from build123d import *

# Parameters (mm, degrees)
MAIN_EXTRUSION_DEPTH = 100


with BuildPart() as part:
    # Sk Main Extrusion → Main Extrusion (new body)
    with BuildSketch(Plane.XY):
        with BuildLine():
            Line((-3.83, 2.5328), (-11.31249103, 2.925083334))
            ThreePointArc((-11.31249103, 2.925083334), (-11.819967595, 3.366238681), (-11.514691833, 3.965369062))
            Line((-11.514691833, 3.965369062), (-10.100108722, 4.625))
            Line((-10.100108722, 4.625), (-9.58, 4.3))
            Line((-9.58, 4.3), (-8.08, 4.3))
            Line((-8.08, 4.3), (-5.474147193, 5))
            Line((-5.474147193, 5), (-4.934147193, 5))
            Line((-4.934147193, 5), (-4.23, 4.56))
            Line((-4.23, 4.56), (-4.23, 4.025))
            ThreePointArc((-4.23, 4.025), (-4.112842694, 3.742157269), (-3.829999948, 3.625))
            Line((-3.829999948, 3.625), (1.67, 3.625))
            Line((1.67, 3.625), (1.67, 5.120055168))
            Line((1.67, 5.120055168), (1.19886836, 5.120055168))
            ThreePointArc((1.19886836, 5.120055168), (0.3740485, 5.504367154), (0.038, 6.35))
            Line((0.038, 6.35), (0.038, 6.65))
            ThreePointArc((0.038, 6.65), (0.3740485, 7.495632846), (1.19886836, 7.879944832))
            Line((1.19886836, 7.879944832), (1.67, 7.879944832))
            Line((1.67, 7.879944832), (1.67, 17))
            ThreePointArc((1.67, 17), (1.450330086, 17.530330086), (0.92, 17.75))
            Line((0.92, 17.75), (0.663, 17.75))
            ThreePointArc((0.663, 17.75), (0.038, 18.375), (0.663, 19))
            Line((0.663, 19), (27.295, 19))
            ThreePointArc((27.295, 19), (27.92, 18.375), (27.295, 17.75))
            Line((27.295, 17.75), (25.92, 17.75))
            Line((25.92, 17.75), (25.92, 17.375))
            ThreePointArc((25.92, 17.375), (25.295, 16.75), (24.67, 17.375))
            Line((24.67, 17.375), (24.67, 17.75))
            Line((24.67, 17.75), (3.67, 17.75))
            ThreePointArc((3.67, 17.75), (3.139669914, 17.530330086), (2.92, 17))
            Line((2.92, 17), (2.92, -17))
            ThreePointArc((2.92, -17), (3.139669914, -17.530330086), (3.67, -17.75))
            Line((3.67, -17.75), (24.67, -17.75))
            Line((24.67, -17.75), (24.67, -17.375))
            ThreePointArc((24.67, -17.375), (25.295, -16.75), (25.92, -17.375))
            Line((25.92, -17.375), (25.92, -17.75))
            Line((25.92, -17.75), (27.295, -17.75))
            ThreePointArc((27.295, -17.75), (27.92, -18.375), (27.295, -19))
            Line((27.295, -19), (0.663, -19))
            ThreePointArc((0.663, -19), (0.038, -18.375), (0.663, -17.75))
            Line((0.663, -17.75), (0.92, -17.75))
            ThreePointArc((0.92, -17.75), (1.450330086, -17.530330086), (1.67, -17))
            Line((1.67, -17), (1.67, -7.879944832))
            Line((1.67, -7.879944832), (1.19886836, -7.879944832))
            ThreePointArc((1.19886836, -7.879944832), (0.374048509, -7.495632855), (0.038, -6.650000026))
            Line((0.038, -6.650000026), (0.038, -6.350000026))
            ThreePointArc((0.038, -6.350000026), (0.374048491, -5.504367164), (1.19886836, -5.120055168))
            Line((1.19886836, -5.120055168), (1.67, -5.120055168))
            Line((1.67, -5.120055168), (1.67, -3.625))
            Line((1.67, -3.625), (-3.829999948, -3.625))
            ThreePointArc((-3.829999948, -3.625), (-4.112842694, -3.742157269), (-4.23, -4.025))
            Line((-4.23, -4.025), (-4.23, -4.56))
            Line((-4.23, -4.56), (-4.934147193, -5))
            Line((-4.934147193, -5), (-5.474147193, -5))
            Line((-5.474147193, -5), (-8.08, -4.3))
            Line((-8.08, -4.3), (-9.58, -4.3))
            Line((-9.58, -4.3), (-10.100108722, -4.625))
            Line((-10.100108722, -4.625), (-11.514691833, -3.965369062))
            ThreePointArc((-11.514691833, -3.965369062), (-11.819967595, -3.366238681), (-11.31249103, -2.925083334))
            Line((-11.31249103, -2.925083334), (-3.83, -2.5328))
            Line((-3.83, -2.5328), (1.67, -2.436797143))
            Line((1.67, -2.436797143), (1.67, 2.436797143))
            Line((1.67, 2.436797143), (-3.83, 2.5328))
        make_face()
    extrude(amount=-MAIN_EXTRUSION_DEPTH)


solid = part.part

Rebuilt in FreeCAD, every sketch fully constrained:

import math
import FreeCAD as App
import Part
import Sketcher

V = App.Vector
Q = App.Units.Quantity

doc = App.newDocument("Part")
params = doc.addObject("Spreadsheet::Sheet", "Params")
for row, (alias, value) in enumerate([
    ("sketch1_radius", "0.4 mm"),
    ("sketch1_width", "21 mm"),
    ("sketch1_height", "34 mm"),
    ("sketch1_radius2", "0.75 mm"),
    ("sketch1_width2", "1.5 mm"),
    ("pad1_length", "100 mm"),
], start=1):
    params.set(f"A{row}", alias)
    params.set(f"B{row}", "=" + value)
    params.setAlias(f"B{row}", alias)

body = doc.addObject("PartDesign::Body", "Body")

sketch1 = doc.addObject("Sketcher::SketchObject", "Sketch")
body.addObject(sketch1)
sketch1.AttachmentSupport = (doc.XY_Plane, [""])
sketch1.MapMode = "FlatFace"
sketch1.addGeometry([
    Part.LineSegment(V(-11.31, 2.93, 0), V(-3.83, 2.53, 0)),
    Part.LineSegment(V(-3.83, 2.53, 0), V(1.67, 2.44, 0)),
    Part.LineSegment(V(1.67, 2.44, 0), V(1.67, -2.44, 0)),
    Part.LineSegment(V(1.67, -2.44, 0), V(-3.83, -2.53, 0)),
    Part.LineSegment(V(-3.83, -2.53, 0), V(-11.31, -2.93, 0)),
    Part.ArcOfCircle(Part.Circle(V(-11.28, -3.47, 0), V(0, 0, 1), 0.55), math.radians(93), math.radians(245)),
    Part.LineSegment(V(-11.51, -3.97, 0), V(-10.1, -4.62, 0)),
    Part.LineSegment(V(-10.1, -4.62, 0), V(-9.58, -4.3, 0)),
    Part.LineSegment(V(-9.58, -4.3, 0), V(-8.08, -4.3, 0)),
    Part.LineSegment(V(-8.08, -4.3, 0), V(-5.47, -5, 0)),
    Part.LineSegment(V(-5.47, -5, 0), V(-4.93, -5, 0)),
    Part.LineSegment(V(-4.93, -5, 0), V(-4.23, -4.56, 0)),
    Part.LineSegment(V(-4.23, -4.56, 0), V(-4.23, -4.03, 0)),
    Part.ArcOfCircle(Part.Circle(V(-3.83, -4.03, 0), V(0, 0, 1), 0.4), math.radians(90), math.radians(180)),
    Part.LineSegment(V(-3.83, -3.62, 0), V(1.67, -3.62, 0)),
    Part.LineSegment(V(1.67, -3.62, 0), V(1.67, -5.12, 0)),
    Part.LineSegment(V(1.67, -5.12, 0), V(1.2, -5.12, 0)),
    Part.ArcOfCircle(Part.Circle(V(1.27, -6.35, 0), V(0, 0, 1), 1.23), math.radians(93), math.radians(180)),
    Part.LineSegment(V(0.04, -6.35, 0), V(0.04, -6.65, 0)),
    Part.ArcOfCircle(Part.Circle(V(1.27, -6.65, 0), V(0, 0, 1), 1.23), math.radians(-180), math.radians(-93)),
    Part.LineSegment(V(1.2, -7.88, 0), V(1.67, -7.88, 0)),
    Part.LineSegment(V(1.67, -7.88, 0), V(1.67, -17, 0)),
    Part.ArcOfCircle(Part.Circle(V(0.92, -17, 0), V(0, 0, 1), 0.75), math.radians(-90), math.radians(0)),
    Part.LineSegment(V(0.92, -17.75, 0), V(0.66, -17.75, 0)),
    Part.ArcOfCircle(Part.Circle(V(0.66, -18.38, 0), V(0, 0, 1), 0.62), math.radians(90), math.radians(270)),
    Part.LineSegment(V(0.66, -19, 0), V(27.3, -19, 0)),
    Part.ArcOfCircle(Part.Circle(V(27.3, -18.38, 0), V(0, 0, 1), 0.62), math.radians(-90), math.radians(90)),
    Part.LineSegment(V(27.3, -17.75, 0), V(25.92, -17.75, 0)),
    Part.LineSegment(V(25.92, -17.75, 0), V(25.92, -17.38, 0)),
    Part.ArcOfCircle(Part.Circle(V(25.3, -17.38, 0), V(0, 0, 1), 0.62), math.radians(0), math.radians(180)),
    Part.LineSegment(V(24.67, -17.38, 0), V(24.67, -17.75, 0)),
    Part.LineSegment(V(24.67, -17.75, 0), V(3.67, -17.75, 0)),
    Part.ArcOfCircle(Part.Circle(V(3.67, -17, 0), V(0, 0, 1), 0.75), math.radians(180), math.radians(270)),
    Part.LineSegment(V(2.92, -17, 0), V(2.92, 17, 0)),
    Part.ArcOfCircle(Part.Circle(V(3.67, 17, 0), V(0, 0, 1), 0.75), math.radians(90), math.radians(180)),
    Part.LineSegment(V(3.67, 17.75, 0), V(24.67, 17.75, 0)),
    Part.LineSegment(V(24.67, 17.75, 0), V(24.67, 17.38, 0)),
    Part.ArcOfCircle(Part.Circle(V(25.3, 17.38, 0), V(0, 0, 1), 0.62), math.radians(180), math.radians(360)),
    Part.LineSegment(V(25.92, 17.38, 0), V(25.92, 17.75, 0)),
    Part.LineSegment(V(25.92, 17.75, 0), V(27.3, 17.75, 0)),
    Part.ArcOfCircle(Part.Circle(V(27.3, 18.38, 0), V(0, 0, 1), 0.62), math.radians(-90), math.radians(90)),
    Part.LineSegment(V(27.3, 19, 0), V(0.66, 19, 0)),
    Part.ArcOfCircle(Part.Circle(V(0.66, 18.38, 0), V(0, 0, 1), 0.62), math.radians(90), math.radians(270)),
    Part.LineSegment(V(0.66, 17.75, 0), V(0.92, 17.75, 0)),
    Part.ArcOfCircle(Part.Circle(V(0.92, 17, 0), V(0, 0, 1), 0.75), math.radians(0), math.radians(90)),
    Part.LineSegment(V(1.67, 17, 0), V(1.67, 7.88, 0)),
    Part.LineSegment(V(1.67, 7.88, 0), V(1.2, 7.88, 0)),
    Part.ArcOfCircle(Part.Circle(V(1.27, 6.65, 0), V(0, 0, 1), 1.23), math.radians(93), math.radians(180)),
    Part.LineSegment(V(0.04, 6.65, 0), V(0.04, 6.35, 0)),
    Part.ArcOfCircle(Part.Circle(V(1.27, 6.35, 0), V(0, 0, 1), 1.23), math.radians(180), math.radians(267)),
    Part.LineSegment(V(1.2, 5.12, 0), V(1.67, 5.12, 0)),
    Part.LineSegment(V(1.67, 5.12, 0), V(1.67, 3.62, 0)),
    Part.LineSegment(V(1.67, 3.62, 0), V(-3.83, 3.62, 0)),
    Part.ArcOfCircle(Part.Circle(V(-3.83, 4.03, 0), V(0, 0, 1), 0.4), math.radians(180), math.radians(270)),
    Part.LineSegment(V(-4.23, 4.03, 0), V(-4.23, 4.56, 0)),
    Part.LineSegment(V(-4.23, 4.56, 0), V(-4.93, 5, 0)),
    Part.LineSegment(V(-4.93, 5, 0), V(-5.47, 5, 0)),
    Part.LineSegment(V(-5.47, 5, 0), V(-8.08, 4.3, 0)),
    Part.LineSegment(V(-8.08, 4.3, 0), V(-9.58, 4.3, 0)),
    Part.LineSegment(V(-9.58, 4.3, 0), V(-10.1, 4.62, 0)),
    Part.LineSegment(V(-10.1, 4.62, 0), V(-11.51, 3.97, 0)),
    Part.ArcOfCircle(Part.Circle(V(-11.28, 3.47, 0), V(0, 0, 1), 0.55), math.radians(115), math.radians(267)),
], False)
sketch1.addConstraint([
    Sketcher.Constraint("Coincident", 0, 2, 1, 1),
    Sketcher.Constraint("Coincident", 1, 2, 2, 1),
    Sketcher.Constraint("Coincident", 2, 2, 3, 1),
    Sketcher.Constraint("Coincident", 3, 2, 4, 1),
    Sketcher.Constraint("Tangent", 4, 2, 5, 1),
    Sketcher.Constraint("Tangent", 5, 2, 6, 1),
    Sketcher.Constraint("Coincident", 6, 2, 7, 1),
    Sketcher.Constraint("Coincident", 7, 2, 8, 1),
    Sketcher.Constraint("Coincident", 8, 2, 9, 1),
    Sketcher.Constraint("Coincident", 9, 2, 10, 1),
    Sketcher.Constraint("Coincident", 10, 2, 11, 1),
    Sketcher.Constraint("Coincident", 11, 2, 12, 1),
    Sketcher.Constraint("Tangent", 12, 2, 13, 2),
    Sketcher.Constraint("Tangent", 13, 1, 14, 1),
    Sketcher.Constraint("Coincident", 14, 2, 15, 1),
    Sketcher.Constraint("Coincident", 15, 2, 16, 1),
    Sketcher.Constraint("Coincident", 16, 2, 17, 1),
    Sketcher.Constraint("Tangent", 17, 2, 18, 1),
    Sketcher.Constraint("Tangent", 18, 2, 19, 1),
    Sketcher.Constraint("Coincident", 19, 2, 20, 1),
    Sketcher.Constraint("Coincident", 20, 2, 21, 1),
    Sketcher.Constraint("Tangent", 21, 2, 22, 2),
    Sketcher.Constraint("Tangent", 22, 1, 23, 1),
    Sketcher.Constraint("Tangent", 23, 2, 24, 1),
    Sketcher.Constraint("Tangent", 24, 2, 25, 1),
    Sketcher.Constraint("Tangent", 25, 2, 26, 1),
    Sketcher.Constraint("Tangent", 26, 2, 27, 1),
    Sketcher.Constraint("Coincident", 27, 2, 28, 1),
    Sketcher.Constraint("Tangent", 28, 2, 29, 1),
    Sketcher.Constraint("Tangent", 29, 2, 30, 1),
    Sketcher.Constraint("Coincident", 30, 2, 31, 1),
    Sketcher.Constraint("Tangent", 31, 2, 32, 2),
    Sketcher.Constraint("Tangent", 32, 1, 33, 1),
    Sketcher.Constraint("Tangent", 33, 2, 34, 2),
    Sketcher.Constraint("Tangent", 34, 1, 35, 1),
    Sketcher.Constraint("Coincident", 35, 2, 36, 1),
    Sketcher.Constraint("Tangent", 36, 2, 37, 1),
    Sketcher.Constraint("Tangent", 37, 2, 38, 1),
    Sketcher.Constraint("Coincident", 38, 2, 39, 1),
    Sketcher.Constraint("Tangent", 39, 2, 40, 1),
    Sketcher.Constraint("Tangent", 40, 2, 41, 1),
    Sketcher.Constraint("Tangent", 41, 2, 42, 1),
    Sketcher.Constraint("Tangent", 42, 2, 43, 1),
    Sketcher.Constraint("Tangent", 43, 2, 44, 2),
    Sketcher.Constraint("Tangent", 44, 1, 45, 1),
    Sketcher.Constraint("Coincident", 45, 2, 46, 1),
    Sketcher.Constraint("Coincident", 46, 2, 47, 1),
    Sketcher.Constraint("Tangent", 47, 2, 48, 1),
    Sketcher.Constraint("Tangent", 48, 2, 49, 1),
    Sketcher.Constraint("Coincident", 49, 2, 50, 1),
    Sketcher.Constraint("Coincident", 50, 2, 51, 1),
    Sketcher.Constraint("Coincident", 51, 2, 52, 1),
    Sketcher.Constraint("Tangent", 52, 2, 53, 2),
    Sketcher.Constraint("Tangent", 53, 1, 54, 1),
    Sketcher.Constraint("Coincident", 54, 2, 55, 1),
    Sketcher.Constraint("Coincident", 55, 2, 56, 1),
    Sketcher.Constraint("Coincident", 56, 2, 57, 1),
    Sketcher.Constraint("Coincident", 57, 2, 58, 1),
    Sketcher.Constraint("Coincident", 58, 2, 59, 1),
    Sketcher.Constraint("Coincident", 59, 2, 60, 1),
    Sketcher.Constraint("Tangent", 60, 2, 61, 1),
    Sketcher.Constraint("Tangent", 61, 2, 0, 1),
    Sketcher.Constraint("Vertical", 2),
    Sketcher.Constraint("Horizontal", 8),
    Sketcher.Constraint("Horizontal", 10),
    Sketcher.Constraint("Vertical", 12),
    Sketcher.Constraint("Horizontal", 14),
    Sketcher.Constraint("Vertical", 15),
    Sketcher.Constraint("Horizontal", 16),
    Sketcher.Constraint("Vertical", 18),
    Sketcher.Constraint("Horizontal", 20),
    Sketcher.Constraint("Vertical", 21),
    Sketcher.Constraint("Horizontal", 23),
    Sketcher.Constraint("Horizontal", 25),
    Sketcher.Constraint("Horizontal", 27),
    Sketcher.Constraint("Vertical", 28),
    Sketcher.Constraint("Vertical", 30),
    Sketcher.Constraint("Horizontal", 31),
    Sketcher.Constraint("Vertical", 33),
    Sketcher.Constraint("Horizontal", 35),
    Sketcher.Constraint("Vertical", 36),
    Sketcher.Constraint("Vertical", 38),
    Sketcher.Constraint("Horizontal", 39),
    Sketcher.Constraint("Horizontal", 41),
    Sketcher.Constraint("Horizontal", 43),
    Sketcher.Constraint("Vertical", 45),
    Sketcher.Constraint("Horizontal", 46),
    Sketcher.Constraint("Vertical", 48),
    Sketcher.Constraint("Horizontal", 50),
    Sketcher.Constraint("Vertical", 51),
    Sketcher.Constraint("Horizontal", 52),
    Sketcher.Constraint("Vertical", 54),
    Sketcher.Constraint("Horizontal", 56),
    Sketcher.Constraint("Horizontal", 58),
    Sketcher.Constraint("Equal", 17, 19),
    Sketcher.Constraint("Equal", 24, 26),
    Sketcher.Constraint("Equal", 26, 29),
    Sketcher.Constraint("Equal", 22, 32),
    Sketcher.Constraint("Equal", 32, 34),
    Sketcher.Constraint("Equal", 29, 37),
    Sketcher.Constraint("Equal", 37, 40),
    Sketcher.Constraint("Equal", 40, 42),
    Sketcher.Constraint("Equal", 34, 44),
    Sketcher.Constraint("Equal", 19, 47),
    Sketcher.Constraint("Equal", 47, 49),
    Sketcher.Constraint("Equal", 13, 53),
    Sketcher.Constraint("Equal", 5, 61),
    Sketcher.Constraint("Symmetric", 29, 3, 37, 3, -1),
    Sketcher.Constraint("Symmetric", 26, 3, 40, 3, -1),
    Sketcher.Constraint("Symmetric", 19, 3, 47, 3, -1),
    Sketcher.Constraint("Symmetric", 13, 3, 53, 3, -1),
    Sketcher.Constraint("Symmetric", 5, 3, 61, 3, -1),
    Sketcher.Constraint("Symmetric", 0, 2, 3, 2, -1),
    Sketcher.Constraint("Symmetric", 20, 2, 45, 2, -1),
    Sketcher.Constraint("Symmetric", 16, 2, 49, 2, -1),
    Sketcher.Constraint("Symmetric", 10, 2, 55, 2, -1),
    Sketcher.Constraint("Symmetric", 8, 2, 57, 2, -1),
    Sketcher.Constraint("Symmetric", 6, 2, 59, 2, -1),
    Sketcher.Constraint("Parallel", 7, 11),
    Sketcher.Constraint("Parallel", 55, 59),
    Sketcher.Constraint("Horizontal", 22, 3, 32, 3),
    Sketcher.Constraint("Horizontal", 34, 3, 44, 3),
    Sketcher.Constraint("Vertical", 24, 3, 42, 3),
    Sketcher.Constraint("Vertical", 53, 3, 0, 2),
    Sketcher.Constraint("Vertical", 2, 2, 14, 2),
    Sketcher.Constraint("Vertical", 16, 2, 19, 2),
    Sketcher.Constraint("Vertical", 15, 2, 20, 2),
    Sketcher.Constraint("Vertical", 45, 2, 50, 2),
    Sketcher.Constraint("Vertical", 9, 2, 56, 2),
    Sketcher.Constraint("Vertical", 7, 2, 58, 2),
    Sketcher.Constraint("Equal", 1, 3),
    Sketcher.Constraint("Radius", 13, 0.4),
    Sketcher.Constraint("DistanceX", 31, 2, 31, 1, 21.0),
    Sketcher.Constraint("DistanceY", 33, 1, 33, 2, 34.0),
    Sketcher.Constraint("Angle", 1, Q("-1 deg")),
    Sketcher.Constraint("Angle", 6, Q("-25 deg")),
    Sketcher.Constraint("Angle", 7, Q("32 deg")),
    Sketcher.Constraint("Radius", 22, 0.75),
    Sketcher.Constraint("DistanceX", 8, 1, 8, 2, 1.5),
    Sketcher.Constraint("DistanceX", 14, 1, 14, 2, 5.5),
    Sketcher.Constraint("DistanceY", 18, 2, 18, 1, 0.3),
    Sketcher.Constraint("DistanceY", 9, 2, -1, 1, 5.0),
    Sketcher.Constraint("DistanceY", 24, 2, -1, 1, 19.0),
    Sketcher.Constraint("Radius", 17, 1.232),
    Sketcher.Constraint("DistanceX", 10, 1, 10, 2, 0.54),
    Sketcher.Constraint("DistanceY", 7, 2, -1, 1, 4.3),
    Sketcher.Constraint("Radius", 5, 0.5461),
    Sketcher.Constraint("DistanceX", 23, 2, 23, 1, 0.257),
    Sketcher.Constraint("DistanceX", 25, 1, 25, 2, 26.632),
    Sketcher.Constraint("DistanceX", 27, 2, 27, 1, 1.375),
    Sketcher.Constraint("DistanceY", 12, 1, 12, 2, 0.535),
    Sketcher.Constraint("DistanceY", 28, 1, 28, 2, 0.375),
    Sketcher.Constraint("DistanceX", 13, 3, -1, 1, 3.83),
    Sketcher.Constraint("DistanceX", -1, 1, 17, 3, 1.27),
    Sketcher.Constraint("DistanceY", 17, 3, -1, 1, 6.35),
    Sketcher.Constraint("DistanceX", 7, 2, -1, 1, 9.58),
    Sketcher.Constraint("DistanceY", 11, 2, -1, 1, 4.56),
    Sketcher.Constraint("DistanceY", 6, 2, -1, 1, 4.625),
    Sketcher.Constraint("DistanceX", 16, 2, 16, 1, 0.471132),
    Sketcher.Constraint("DistanceX", 5, 3, -1, 1, 11.2839),
    Sketcher.Constraint("DistanceY", -1, 1, 0, 2, 2.5328),
])
sketch1.setExpression("Constraints[131]", "Params.sketch1_radius")
sketch1.setExpression("Constraints[132]", "Params.sketch1_width")
sketch1.setExpression("Constraints[133]", "Params.sketch1_height")
sketch1.setExpression("Constraints[137]", "Params.sketch1_radius2")
sketch1.setExpression("Constraints[138]", "Params.sketch1_width2")
pad1 = doc.addObject("PartDesign::Pad", "Pad")
body.addObject(pad1)
pad1.Profile = sketch1
pad1.setExpression("Length", "Params.pad1_length")
pad1.Reversed = True

doc.recompute()
